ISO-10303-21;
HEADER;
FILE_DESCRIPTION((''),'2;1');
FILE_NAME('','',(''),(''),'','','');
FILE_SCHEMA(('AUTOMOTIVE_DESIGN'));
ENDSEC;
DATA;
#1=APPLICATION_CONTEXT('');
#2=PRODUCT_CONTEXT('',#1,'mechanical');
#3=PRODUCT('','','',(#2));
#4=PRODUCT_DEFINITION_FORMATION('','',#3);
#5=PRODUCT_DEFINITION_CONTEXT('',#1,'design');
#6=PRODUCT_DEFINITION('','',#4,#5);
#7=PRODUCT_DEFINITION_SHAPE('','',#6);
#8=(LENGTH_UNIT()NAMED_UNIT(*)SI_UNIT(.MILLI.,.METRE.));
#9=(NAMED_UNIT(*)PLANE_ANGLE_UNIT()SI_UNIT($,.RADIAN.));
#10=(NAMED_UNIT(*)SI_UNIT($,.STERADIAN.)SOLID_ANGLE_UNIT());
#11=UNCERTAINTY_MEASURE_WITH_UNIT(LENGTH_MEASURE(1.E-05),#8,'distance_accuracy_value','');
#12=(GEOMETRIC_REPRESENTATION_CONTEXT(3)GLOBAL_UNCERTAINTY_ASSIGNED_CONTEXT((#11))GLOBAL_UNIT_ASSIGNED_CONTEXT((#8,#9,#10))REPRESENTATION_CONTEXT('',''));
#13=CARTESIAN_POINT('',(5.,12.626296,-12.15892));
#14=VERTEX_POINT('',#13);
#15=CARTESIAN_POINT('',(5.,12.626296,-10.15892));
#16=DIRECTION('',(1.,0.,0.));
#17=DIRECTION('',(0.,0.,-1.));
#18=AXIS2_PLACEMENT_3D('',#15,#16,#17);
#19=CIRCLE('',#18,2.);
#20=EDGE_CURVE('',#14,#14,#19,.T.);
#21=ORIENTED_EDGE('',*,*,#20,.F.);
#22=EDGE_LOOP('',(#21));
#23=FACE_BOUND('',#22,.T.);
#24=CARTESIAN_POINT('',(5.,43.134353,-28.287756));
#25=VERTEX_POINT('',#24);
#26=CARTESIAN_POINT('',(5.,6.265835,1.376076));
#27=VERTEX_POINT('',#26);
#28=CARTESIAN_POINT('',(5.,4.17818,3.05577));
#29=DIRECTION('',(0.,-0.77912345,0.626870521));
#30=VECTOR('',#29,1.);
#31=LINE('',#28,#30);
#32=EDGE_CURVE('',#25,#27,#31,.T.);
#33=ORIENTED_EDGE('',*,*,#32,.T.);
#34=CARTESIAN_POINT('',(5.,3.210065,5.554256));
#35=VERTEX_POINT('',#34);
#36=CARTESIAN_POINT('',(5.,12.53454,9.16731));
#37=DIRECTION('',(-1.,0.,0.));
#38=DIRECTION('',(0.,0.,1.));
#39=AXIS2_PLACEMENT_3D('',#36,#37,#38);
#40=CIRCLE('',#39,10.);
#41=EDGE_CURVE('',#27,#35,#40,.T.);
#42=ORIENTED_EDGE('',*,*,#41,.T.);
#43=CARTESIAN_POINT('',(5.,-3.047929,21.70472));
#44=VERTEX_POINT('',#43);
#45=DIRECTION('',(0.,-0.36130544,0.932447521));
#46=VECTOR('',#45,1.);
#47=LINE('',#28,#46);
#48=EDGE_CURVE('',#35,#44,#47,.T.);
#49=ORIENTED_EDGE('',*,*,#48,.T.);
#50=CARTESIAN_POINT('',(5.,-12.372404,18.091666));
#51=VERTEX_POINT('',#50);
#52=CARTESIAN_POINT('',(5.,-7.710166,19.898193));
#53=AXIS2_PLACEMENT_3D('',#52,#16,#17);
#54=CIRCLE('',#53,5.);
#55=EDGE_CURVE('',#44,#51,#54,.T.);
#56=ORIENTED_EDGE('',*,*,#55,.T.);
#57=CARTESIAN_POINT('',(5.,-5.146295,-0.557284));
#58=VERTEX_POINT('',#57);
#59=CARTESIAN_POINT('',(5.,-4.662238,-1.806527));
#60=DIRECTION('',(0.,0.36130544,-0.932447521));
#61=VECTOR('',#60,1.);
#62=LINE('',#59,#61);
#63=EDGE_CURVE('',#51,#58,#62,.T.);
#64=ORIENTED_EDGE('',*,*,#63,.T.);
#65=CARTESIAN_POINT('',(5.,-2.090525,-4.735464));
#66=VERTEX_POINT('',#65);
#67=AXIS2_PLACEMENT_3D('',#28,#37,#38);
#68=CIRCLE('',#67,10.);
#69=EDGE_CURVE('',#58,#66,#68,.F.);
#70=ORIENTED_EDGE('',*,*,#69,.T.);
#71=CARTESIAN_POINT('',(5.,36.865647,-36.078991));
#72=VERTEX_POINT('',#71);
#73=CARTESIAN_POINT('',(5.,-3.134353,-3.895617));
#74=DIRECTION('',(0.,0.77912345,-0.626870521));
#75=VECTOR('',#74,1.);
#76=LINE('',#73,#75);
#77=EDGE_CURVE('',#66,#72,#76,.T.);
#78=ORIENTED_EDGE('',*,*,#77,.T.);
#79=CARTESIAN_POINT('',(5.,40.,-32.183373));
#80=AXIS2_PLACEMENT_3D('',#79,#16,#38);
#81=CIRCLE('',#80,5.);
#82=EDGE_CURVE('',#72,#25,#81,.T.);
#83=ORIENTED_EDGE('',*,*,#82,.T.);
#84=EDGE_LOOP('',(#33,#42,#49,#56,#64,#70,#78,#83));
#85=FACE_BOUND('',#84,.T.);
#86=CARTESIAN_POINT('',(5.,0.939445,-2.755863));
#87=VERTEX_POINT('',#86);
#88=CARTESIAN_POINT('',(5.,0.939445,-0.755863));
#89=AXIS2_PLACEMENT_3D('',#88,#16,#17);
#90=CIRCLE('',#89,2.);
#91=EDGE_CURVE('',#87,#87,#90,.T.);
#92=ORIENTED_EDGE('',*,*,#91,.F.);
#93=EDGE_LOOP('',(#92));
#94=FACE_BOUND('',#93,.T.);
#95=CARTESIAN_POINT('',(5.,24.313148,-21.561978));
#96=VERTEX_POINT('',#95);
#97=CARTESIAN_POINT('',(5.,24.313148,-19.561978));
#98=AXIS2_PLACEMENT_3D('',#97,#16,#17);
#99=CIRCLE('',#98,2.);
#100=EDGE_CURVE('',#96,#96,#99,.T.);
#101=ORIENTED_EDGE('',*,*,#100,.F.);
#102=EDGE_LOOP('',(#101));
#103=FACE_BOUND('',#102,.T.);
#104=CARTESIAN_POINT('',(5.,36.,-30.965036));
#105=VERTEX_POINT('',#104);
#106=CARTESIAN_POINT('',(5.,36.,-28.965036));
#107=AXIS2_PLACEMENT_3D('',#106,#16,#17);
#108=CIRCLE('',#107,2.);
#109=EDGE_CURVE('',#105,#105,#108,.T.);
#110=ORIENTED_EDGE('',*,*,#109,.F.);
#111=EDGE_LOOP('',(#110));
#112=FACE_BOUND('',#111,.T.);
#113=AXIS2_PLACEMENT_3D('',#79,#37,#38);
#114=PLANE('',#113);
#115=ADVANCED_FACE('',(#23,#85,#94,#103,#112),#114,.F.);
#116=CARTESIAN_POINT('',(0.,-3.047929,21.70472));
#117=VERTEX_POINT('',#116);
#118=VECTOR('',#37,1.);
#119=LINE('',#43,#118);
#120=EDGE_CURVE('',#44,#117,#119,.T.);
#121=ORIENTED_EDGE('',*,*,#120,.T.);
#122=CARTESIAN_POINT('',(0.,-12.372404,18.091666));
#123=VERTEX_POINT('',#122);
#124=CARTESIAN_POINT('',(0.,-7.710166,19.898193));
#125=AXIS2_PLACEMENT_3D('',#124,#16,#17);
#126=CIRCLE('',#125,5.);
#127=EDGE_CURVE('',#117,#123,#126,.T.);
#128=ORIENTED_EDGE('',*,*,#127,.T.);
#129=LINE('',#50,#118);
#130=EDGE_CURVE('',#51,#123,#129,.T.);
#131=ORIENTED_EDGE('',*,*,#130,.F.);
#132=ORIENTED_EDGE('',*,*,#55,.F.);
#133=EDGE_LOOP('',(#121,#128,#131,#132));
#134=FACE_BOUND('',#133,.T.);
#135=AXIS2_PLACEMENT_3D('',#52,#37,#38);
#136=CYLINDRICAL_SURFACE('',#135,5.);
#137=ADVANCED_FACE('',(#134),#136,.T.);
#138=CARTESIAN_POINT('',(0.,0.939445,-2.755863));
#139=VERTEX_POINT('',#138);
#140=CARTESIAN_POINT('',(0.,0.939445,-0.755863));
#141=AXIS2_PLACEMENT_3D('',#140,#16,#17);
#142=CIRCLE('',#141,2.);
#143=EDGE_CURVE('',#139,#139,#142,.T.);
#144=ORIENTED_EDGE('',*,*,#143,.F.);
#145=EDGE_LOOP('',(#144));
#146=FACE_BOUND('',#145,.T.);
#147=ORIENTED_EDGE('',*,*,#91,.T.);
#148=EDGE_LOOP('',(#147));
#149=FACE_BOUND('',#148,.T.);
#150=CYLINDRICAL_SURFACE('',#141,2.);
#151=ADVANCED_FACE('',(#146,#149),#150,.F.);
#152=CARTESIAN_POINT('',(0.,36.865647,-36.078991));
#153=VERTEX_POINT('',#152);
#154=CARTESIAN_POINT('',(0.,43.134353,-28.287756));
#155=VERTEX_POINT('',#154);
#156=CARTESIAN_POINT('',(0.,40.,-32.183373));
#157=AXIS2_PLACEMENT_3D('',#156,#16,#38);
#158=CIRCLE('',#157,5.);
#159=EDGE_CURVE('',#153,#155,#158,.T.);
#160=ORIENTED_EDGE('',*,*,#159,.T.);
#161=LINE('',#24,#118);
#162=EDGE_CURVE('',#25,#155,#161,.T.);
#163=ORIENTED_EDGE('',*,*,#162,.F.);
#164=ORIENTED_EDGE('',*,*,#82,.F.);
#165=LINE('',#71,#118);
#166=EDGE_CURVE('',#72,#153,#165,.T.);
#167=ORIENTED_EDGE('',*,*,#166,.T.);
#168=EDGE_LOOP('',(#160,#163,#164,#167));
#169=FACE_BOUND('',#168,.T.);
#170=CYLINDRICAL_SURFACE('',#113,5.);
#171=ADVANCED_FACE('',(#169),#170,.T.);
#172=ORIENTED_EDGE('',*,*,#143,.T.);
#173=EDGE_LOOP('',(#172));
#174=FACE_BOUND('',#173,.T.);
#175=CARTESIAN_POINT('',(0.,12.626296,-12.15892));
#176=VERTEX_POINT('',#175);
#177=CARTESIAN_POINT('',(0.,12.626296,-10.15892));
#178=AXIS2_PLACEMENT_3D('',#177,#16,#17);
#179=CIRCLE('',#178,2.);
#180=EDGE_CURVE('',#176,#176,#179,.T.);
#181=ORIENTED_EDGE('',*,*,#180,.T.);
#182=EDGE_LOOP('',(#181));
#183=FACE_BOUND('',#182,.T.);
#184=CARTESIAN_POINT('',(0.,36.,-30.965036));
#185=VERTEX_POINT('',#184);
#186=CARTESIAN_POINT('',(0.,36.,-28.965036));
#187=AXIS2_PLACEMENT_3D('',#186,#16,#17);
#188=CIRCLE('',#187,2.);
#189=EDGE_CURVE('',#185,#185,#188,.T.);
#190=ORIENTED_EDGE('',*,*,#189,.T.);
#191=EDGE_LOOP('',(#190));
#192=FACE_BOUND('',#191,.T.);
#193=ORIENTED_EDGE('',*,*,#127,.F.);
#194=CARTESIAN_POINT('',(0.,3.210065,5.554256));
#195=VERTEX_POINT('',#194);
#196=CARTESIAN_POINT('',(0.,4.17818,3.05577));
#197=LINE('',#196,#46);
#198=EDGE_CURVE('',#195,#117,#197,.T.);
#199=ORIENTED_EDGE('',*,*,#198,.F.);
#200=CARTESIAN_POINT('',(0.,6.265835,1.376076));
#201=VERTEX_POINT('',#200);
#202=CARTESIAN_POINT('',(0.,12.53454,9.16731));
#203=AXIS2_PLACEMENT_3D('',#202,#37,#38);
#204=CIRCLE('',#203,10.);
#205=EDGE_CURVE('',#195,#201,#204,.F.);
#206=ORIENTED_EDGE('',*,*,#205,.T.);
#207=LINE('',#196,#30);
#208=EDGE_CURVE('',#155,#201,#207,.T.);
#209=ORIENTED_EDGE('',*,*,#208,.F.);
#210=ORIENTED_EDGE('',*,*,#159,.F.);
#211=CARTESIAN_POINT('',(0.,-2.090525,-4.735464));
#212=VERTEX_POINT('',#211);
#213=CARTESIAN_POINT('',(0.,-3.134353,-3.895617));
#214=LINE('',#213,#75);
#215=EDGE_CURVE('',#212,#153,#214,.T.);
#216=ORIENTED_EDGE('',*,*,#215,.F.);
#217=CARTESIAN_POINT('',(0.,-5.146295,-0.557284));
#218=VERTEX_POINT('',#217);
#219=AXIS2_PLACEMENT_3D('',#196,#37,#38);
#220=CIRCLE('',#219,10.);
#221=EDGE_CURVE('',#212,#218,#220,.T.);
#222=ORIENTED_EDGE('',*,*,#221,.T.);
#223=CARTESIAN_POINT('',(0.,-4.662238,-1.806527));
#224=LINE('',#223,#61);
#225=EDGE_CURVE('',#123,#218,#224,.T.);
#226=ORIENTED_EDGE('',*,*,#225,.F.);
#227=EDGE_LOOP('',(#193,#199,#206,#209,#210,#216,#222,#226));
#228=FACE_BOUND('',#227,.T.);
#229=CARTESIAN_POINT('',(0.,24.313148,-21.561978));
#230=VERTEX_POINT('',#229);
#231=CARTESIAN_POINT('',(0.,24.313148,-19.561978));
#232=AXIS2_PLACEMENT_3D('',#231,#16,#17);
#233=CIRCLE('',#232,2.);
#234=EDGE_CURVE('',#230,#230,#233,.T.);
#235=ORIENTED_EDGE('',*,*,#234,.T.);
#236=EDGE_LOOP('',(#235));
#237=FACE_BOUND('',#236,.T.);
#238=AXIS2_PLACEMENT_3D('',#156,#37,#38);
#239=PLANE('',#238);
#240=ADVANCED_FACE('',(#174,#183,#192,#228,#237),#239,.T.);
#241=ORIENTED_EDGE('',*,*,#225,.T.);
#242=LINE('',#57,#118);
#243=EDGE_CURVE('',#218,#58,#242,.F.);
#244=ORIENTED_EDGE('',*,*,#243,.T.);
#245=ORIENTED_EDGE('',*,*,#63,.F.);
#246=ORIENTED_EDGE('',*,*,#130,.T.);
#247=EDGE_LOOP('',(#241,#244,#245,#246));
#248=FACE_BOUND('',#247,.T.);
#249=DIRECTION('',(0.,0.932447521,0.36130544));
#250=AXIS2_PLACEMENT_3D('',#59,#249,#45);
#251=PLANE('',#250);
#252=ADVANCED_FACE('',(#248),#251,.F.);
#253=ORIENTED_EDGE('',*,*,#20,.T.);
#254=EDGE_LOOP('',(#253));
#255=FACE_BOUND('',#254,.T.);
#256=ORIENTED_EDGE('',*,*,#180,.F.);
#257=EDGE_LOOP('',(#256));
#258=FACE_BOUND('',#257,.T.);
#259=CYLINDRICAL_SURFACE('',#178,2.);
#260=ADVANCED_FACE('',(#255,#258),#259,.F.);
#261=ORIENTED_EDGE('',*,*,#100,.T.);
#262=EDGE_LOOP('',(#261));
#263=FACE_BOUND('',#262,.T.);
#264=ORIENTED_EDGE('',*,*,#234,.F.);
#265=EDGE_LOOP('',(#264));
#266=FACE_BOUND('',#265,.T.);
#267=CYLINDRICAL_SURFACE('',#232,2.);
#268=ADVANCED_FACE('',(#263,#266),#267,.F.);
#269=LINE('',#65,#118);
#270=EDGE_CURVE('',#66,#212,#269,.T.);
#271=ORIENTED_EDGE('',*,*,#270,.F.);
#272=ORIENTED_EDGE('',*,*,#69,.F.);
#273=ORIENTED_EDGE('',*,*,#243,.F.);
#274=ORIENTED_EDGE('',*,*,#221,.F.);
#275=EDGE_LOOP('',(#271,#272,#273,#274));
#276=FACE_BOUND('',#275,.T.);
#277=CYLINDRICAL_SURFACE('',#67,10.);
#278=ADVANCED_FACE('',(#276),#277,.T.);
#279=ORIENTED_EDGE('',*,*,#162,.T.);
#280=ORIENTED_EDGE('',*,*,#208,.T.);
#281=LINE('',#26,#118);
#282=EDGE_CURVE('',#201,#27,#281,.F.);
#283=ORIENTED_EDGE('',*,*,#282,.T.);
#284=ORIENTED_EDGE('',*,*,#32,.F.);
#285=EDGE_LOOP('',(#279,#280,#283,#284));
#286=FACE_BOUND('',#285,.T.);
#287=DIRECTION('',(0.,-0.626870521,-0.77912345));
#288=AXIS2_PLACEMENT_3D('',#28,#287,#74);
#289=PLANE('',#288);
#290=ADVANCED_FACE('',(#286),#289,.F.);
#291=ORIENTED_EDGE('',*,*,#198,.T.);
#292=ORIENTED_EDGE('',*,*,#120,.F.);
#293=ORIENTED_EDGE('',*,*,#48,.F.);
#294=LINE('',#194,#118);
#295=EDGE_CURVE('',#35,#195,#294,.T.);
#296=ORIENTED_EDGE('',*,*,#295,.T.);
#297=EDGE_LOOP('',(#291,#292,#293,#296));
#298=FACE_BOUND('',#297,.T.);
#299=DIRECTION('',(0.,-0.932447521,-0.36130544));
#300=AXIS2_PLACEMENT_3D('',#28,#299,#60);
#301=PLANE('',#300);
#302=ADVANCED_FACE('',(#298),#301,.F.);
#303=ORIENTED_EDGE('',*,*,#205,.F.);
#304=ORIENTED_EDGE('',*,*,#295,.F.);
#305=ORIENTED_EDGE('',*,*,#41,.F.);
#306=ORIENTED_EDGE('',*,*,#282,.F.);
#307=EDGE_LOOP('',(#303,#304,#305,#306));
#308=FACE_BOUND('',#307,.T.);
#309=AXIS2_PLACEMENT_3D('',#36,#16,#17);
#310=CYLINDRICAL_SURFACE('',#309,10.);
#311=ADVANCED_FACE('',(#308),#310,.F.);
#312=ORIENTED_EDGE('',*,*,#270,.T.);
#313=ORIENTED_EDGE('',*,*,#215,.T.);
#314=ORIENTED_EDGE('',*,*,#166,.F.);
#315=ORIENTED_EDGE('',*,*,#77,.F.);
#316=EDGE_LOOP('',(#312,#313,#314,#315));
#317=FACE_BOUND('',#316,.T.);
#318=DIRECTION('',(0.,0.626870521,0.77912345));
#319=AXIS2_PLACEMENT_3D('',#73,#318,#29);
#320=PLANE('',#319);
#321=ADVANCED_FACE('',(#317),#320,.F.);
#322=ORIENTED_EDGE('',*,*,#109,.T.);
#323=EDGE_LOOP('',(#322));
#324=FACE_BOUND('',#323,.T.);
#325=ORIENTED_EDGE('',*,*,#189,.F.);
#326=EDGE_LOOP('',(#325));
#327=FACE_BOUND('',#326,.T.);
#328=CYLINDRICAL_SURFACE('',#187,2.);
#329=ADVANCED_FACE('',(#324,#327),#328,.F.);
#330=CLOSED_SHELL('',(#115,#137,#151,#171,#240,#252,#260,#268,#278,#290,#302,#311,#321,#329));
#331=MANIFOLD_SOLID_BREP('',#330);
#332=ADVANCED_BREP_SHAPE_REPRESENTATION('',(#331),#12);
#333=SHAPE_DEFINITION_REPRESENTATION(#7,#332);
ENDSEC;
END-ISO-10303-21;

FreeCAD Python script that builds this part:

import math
import FreeCAD as App
import Part
import Sketcher
from FreeCAD import Vector
Q = App.Units.Quantity


def edges_at(feature, points):
    """Names of the edges that pass closest to the given points."""
    edges = feature.Shape.Edges
    near = lambda p: min(range(len(edges)), key=lambda i: edges[i].distToShape(Part.Vertex(*p))[0])
    return sorted({f"Edge{near(p) + 1}" for p in points})

doc = App.newDocument("Part")
body = doc.addObject("PartDesign::Body", "Body")

sketch1 = body.newObject("Sketcher::SketchObject", "Sketch")
sketch1.AttachmentSupport = (doc.getObject("YZ_Plane"), [""])
sketch1.MapMode = "FlatFace"
sketch1.addGeometry([
    Part.LineSegment(Vector(-3.134353, -3.895617, 0), Vector(36.865647, -36.078991, 0)),
    Part.ArcOfCircle(Part.Circle(Vector(40, -32.183373, 0), Vector(0, 0, 1), 5), math.radians(-128.819611), math.radians(51.180389)),
    Part.LineSegment(Vector(43.134353, -28.287756, 0), Vector(4.17818, 3.05577, 0)),
    Part.LineSegment(Vector(4.17818, 3.05577, 0), Vector(-3.047929, 21.70472, 0)),
    Part.ArcOfCircle(Part.Circle(Vector(-7.710166, 19.898193, 0), Vector(0, 0, 1), 5), math.radians(21.180389), math.radians(201.180389)),
    Part.LineSegment(Vector(-12.372404, 18.091666, 0), Vector(-4.662238, -1.806527, 0)),
    Part.LineSegment(Vector(-4.662238, -1.806527, 0), Vector(-4.17818, -3.05577, 0)),
    Part.LineSegment(Vector(-4.17818, -3.05577, 0), Vector(-3.134353, -3.895617, 0)),
], False)
sketch1.addConstraint([
    Sketcher.Constraint("Tangent", 0, 2, 1, 1),
    Sketcher.Constraint("Tangent", 1, 2, 2, 1),
    Sketcher.Constraint("Coincident", 2, 2, 3, 1),
    Sketcher.Constraint("Tangent", 3, 2, 4, 1),
    Sketcher.Constraint("Tangent", 4, 2, 5, 1),
    Sketcher.Constraint("Coincident", 5, 2, 6, 1),
    Sketcher.Constraint("Coincident", 6, 2, 7, 1),
    Sketcher.Constraint("Coincident", 7, 2, 0, 1),
    Sketcher.Constraint("Equal", 1, 4),
    Sketcher.Constraint("Symmetric", 2, 2, 6, 2, -1, 1),
    Sketcher.Constraint("Parallel", 0, 2),
    Sketcher.Constraint("Parallel", 3, 5),
    Sketcher.Constraint("Parallel", 5, 6),
    Sketcher.Constraint("Parallel", 2, 7),
    Sketcher.Constraint("Equal", 6, 7),
    Sketcher.Constraint("Radius", 1, Q("5 mm")),
    Sketcher.Constraint("Distance", 2, Q("50 mm")),
    Sketcher.Constraint("Distance", 3, Q("20 mm")),
    Sketcher.Constraint("DistanceX", -1, 1, 1, 3, Q("40 mm")),
    Sketcher.Constraint("DistanceY", 0, 2, -1, 1, Q("36.078991 mm")),
    Sketcher.Constraint("DistanceX", 4, 3, 5, 2, Q("3.047929 mm")),
])
pad1 = body.newObject("PartDesign::Pad", "Pad")
pad1.Profile = sketch1
pad1.Length = 5

sketch2 = body.newObject("Sketcher::SketchObject", "Sketch001")
sketch2.AttachmentSupport = (doc.getObject("YZ_Plane"), [""])
sketch2.MapMode = "FlatFace"
sketch2.AttachmentOffset = App.Placement(Vector(0, 0, 5), App.Rotation())
sketch2.addGeometry([
    Part.Circle(Vector(36, -28.965036, 0), Vector(0, 0, 1), 2),
    Part.Circle(Vector(24.313148, -19.561978, 0), Vector(0, 0, 1), 2),
    Part.Circle(Vector(12.626296, -10.15892, 0), Vector(0, 0, 1), 2),
    Part.Circle(Vector(0.939445, -0.755863, 0), Vector(0, 0, 1), 2),
], False)
sketch2.addConstraint([
    Sketcher.Constraint("Equal", 0, 1),
    Sketcher.Constraint("Equal", 1, 2),
    Sketcher.Constraint("Equal", 2, 3),
    Sketcher.Constraint("Diameter", 0, Q("4 mm")),
    Sketcher.Constraint("DistanceX", -1, 1, 0, 3, Q("36 mm")),
    Sketcher.Constraint("DistanceX", -1, 1, 1, 3, Q("24.313148 mm")),
    Sketcher.Constraint("DistanceY", 1, 3, -1, 1, Q("19.561978 mm")),
    Sketcher.Constraint("DistanceY", 2, 3, -1, 1, Q("10.15892 mm")),
    Sketcher.Constraint("DistanceX", 2, 3, 1, 3, Q("11.686852 mm")),
    Sketcher.Constraint("DistanceX", 3, 3, 2, 3, Q("11.686852 mm")),
    Sketcher.Constraint("DistanceY", 0, 3, -1, 1, Q("28.965036 mm")),
    Sketcher.Constraint("DistanceY", 3, 3, -1, 1, Q("0.755863 mm")),
])
pocket1 = body.newObject("PartDesign::Pocket", "Pocket")
pocket1.Profile = sketch2
pocket1.Length = 5
doc.recompute()

fillet = body.newObject("PartDesign::Fillet", "Fillet")
fillet.Base = (pocket1, edges_at(pocket1, [(2.5, 4.178, 3.056)]))
fillet.Radius = 10
doc.recompute()

fillet2 = body.newObject("PartDesign::Fillet", "Fillet001")
fillet2.Base = (fillet, edges_at(fillet, [(2.5, -4.178, -3.056)]))
fillet2.Radius = 10

doc.recompute()
